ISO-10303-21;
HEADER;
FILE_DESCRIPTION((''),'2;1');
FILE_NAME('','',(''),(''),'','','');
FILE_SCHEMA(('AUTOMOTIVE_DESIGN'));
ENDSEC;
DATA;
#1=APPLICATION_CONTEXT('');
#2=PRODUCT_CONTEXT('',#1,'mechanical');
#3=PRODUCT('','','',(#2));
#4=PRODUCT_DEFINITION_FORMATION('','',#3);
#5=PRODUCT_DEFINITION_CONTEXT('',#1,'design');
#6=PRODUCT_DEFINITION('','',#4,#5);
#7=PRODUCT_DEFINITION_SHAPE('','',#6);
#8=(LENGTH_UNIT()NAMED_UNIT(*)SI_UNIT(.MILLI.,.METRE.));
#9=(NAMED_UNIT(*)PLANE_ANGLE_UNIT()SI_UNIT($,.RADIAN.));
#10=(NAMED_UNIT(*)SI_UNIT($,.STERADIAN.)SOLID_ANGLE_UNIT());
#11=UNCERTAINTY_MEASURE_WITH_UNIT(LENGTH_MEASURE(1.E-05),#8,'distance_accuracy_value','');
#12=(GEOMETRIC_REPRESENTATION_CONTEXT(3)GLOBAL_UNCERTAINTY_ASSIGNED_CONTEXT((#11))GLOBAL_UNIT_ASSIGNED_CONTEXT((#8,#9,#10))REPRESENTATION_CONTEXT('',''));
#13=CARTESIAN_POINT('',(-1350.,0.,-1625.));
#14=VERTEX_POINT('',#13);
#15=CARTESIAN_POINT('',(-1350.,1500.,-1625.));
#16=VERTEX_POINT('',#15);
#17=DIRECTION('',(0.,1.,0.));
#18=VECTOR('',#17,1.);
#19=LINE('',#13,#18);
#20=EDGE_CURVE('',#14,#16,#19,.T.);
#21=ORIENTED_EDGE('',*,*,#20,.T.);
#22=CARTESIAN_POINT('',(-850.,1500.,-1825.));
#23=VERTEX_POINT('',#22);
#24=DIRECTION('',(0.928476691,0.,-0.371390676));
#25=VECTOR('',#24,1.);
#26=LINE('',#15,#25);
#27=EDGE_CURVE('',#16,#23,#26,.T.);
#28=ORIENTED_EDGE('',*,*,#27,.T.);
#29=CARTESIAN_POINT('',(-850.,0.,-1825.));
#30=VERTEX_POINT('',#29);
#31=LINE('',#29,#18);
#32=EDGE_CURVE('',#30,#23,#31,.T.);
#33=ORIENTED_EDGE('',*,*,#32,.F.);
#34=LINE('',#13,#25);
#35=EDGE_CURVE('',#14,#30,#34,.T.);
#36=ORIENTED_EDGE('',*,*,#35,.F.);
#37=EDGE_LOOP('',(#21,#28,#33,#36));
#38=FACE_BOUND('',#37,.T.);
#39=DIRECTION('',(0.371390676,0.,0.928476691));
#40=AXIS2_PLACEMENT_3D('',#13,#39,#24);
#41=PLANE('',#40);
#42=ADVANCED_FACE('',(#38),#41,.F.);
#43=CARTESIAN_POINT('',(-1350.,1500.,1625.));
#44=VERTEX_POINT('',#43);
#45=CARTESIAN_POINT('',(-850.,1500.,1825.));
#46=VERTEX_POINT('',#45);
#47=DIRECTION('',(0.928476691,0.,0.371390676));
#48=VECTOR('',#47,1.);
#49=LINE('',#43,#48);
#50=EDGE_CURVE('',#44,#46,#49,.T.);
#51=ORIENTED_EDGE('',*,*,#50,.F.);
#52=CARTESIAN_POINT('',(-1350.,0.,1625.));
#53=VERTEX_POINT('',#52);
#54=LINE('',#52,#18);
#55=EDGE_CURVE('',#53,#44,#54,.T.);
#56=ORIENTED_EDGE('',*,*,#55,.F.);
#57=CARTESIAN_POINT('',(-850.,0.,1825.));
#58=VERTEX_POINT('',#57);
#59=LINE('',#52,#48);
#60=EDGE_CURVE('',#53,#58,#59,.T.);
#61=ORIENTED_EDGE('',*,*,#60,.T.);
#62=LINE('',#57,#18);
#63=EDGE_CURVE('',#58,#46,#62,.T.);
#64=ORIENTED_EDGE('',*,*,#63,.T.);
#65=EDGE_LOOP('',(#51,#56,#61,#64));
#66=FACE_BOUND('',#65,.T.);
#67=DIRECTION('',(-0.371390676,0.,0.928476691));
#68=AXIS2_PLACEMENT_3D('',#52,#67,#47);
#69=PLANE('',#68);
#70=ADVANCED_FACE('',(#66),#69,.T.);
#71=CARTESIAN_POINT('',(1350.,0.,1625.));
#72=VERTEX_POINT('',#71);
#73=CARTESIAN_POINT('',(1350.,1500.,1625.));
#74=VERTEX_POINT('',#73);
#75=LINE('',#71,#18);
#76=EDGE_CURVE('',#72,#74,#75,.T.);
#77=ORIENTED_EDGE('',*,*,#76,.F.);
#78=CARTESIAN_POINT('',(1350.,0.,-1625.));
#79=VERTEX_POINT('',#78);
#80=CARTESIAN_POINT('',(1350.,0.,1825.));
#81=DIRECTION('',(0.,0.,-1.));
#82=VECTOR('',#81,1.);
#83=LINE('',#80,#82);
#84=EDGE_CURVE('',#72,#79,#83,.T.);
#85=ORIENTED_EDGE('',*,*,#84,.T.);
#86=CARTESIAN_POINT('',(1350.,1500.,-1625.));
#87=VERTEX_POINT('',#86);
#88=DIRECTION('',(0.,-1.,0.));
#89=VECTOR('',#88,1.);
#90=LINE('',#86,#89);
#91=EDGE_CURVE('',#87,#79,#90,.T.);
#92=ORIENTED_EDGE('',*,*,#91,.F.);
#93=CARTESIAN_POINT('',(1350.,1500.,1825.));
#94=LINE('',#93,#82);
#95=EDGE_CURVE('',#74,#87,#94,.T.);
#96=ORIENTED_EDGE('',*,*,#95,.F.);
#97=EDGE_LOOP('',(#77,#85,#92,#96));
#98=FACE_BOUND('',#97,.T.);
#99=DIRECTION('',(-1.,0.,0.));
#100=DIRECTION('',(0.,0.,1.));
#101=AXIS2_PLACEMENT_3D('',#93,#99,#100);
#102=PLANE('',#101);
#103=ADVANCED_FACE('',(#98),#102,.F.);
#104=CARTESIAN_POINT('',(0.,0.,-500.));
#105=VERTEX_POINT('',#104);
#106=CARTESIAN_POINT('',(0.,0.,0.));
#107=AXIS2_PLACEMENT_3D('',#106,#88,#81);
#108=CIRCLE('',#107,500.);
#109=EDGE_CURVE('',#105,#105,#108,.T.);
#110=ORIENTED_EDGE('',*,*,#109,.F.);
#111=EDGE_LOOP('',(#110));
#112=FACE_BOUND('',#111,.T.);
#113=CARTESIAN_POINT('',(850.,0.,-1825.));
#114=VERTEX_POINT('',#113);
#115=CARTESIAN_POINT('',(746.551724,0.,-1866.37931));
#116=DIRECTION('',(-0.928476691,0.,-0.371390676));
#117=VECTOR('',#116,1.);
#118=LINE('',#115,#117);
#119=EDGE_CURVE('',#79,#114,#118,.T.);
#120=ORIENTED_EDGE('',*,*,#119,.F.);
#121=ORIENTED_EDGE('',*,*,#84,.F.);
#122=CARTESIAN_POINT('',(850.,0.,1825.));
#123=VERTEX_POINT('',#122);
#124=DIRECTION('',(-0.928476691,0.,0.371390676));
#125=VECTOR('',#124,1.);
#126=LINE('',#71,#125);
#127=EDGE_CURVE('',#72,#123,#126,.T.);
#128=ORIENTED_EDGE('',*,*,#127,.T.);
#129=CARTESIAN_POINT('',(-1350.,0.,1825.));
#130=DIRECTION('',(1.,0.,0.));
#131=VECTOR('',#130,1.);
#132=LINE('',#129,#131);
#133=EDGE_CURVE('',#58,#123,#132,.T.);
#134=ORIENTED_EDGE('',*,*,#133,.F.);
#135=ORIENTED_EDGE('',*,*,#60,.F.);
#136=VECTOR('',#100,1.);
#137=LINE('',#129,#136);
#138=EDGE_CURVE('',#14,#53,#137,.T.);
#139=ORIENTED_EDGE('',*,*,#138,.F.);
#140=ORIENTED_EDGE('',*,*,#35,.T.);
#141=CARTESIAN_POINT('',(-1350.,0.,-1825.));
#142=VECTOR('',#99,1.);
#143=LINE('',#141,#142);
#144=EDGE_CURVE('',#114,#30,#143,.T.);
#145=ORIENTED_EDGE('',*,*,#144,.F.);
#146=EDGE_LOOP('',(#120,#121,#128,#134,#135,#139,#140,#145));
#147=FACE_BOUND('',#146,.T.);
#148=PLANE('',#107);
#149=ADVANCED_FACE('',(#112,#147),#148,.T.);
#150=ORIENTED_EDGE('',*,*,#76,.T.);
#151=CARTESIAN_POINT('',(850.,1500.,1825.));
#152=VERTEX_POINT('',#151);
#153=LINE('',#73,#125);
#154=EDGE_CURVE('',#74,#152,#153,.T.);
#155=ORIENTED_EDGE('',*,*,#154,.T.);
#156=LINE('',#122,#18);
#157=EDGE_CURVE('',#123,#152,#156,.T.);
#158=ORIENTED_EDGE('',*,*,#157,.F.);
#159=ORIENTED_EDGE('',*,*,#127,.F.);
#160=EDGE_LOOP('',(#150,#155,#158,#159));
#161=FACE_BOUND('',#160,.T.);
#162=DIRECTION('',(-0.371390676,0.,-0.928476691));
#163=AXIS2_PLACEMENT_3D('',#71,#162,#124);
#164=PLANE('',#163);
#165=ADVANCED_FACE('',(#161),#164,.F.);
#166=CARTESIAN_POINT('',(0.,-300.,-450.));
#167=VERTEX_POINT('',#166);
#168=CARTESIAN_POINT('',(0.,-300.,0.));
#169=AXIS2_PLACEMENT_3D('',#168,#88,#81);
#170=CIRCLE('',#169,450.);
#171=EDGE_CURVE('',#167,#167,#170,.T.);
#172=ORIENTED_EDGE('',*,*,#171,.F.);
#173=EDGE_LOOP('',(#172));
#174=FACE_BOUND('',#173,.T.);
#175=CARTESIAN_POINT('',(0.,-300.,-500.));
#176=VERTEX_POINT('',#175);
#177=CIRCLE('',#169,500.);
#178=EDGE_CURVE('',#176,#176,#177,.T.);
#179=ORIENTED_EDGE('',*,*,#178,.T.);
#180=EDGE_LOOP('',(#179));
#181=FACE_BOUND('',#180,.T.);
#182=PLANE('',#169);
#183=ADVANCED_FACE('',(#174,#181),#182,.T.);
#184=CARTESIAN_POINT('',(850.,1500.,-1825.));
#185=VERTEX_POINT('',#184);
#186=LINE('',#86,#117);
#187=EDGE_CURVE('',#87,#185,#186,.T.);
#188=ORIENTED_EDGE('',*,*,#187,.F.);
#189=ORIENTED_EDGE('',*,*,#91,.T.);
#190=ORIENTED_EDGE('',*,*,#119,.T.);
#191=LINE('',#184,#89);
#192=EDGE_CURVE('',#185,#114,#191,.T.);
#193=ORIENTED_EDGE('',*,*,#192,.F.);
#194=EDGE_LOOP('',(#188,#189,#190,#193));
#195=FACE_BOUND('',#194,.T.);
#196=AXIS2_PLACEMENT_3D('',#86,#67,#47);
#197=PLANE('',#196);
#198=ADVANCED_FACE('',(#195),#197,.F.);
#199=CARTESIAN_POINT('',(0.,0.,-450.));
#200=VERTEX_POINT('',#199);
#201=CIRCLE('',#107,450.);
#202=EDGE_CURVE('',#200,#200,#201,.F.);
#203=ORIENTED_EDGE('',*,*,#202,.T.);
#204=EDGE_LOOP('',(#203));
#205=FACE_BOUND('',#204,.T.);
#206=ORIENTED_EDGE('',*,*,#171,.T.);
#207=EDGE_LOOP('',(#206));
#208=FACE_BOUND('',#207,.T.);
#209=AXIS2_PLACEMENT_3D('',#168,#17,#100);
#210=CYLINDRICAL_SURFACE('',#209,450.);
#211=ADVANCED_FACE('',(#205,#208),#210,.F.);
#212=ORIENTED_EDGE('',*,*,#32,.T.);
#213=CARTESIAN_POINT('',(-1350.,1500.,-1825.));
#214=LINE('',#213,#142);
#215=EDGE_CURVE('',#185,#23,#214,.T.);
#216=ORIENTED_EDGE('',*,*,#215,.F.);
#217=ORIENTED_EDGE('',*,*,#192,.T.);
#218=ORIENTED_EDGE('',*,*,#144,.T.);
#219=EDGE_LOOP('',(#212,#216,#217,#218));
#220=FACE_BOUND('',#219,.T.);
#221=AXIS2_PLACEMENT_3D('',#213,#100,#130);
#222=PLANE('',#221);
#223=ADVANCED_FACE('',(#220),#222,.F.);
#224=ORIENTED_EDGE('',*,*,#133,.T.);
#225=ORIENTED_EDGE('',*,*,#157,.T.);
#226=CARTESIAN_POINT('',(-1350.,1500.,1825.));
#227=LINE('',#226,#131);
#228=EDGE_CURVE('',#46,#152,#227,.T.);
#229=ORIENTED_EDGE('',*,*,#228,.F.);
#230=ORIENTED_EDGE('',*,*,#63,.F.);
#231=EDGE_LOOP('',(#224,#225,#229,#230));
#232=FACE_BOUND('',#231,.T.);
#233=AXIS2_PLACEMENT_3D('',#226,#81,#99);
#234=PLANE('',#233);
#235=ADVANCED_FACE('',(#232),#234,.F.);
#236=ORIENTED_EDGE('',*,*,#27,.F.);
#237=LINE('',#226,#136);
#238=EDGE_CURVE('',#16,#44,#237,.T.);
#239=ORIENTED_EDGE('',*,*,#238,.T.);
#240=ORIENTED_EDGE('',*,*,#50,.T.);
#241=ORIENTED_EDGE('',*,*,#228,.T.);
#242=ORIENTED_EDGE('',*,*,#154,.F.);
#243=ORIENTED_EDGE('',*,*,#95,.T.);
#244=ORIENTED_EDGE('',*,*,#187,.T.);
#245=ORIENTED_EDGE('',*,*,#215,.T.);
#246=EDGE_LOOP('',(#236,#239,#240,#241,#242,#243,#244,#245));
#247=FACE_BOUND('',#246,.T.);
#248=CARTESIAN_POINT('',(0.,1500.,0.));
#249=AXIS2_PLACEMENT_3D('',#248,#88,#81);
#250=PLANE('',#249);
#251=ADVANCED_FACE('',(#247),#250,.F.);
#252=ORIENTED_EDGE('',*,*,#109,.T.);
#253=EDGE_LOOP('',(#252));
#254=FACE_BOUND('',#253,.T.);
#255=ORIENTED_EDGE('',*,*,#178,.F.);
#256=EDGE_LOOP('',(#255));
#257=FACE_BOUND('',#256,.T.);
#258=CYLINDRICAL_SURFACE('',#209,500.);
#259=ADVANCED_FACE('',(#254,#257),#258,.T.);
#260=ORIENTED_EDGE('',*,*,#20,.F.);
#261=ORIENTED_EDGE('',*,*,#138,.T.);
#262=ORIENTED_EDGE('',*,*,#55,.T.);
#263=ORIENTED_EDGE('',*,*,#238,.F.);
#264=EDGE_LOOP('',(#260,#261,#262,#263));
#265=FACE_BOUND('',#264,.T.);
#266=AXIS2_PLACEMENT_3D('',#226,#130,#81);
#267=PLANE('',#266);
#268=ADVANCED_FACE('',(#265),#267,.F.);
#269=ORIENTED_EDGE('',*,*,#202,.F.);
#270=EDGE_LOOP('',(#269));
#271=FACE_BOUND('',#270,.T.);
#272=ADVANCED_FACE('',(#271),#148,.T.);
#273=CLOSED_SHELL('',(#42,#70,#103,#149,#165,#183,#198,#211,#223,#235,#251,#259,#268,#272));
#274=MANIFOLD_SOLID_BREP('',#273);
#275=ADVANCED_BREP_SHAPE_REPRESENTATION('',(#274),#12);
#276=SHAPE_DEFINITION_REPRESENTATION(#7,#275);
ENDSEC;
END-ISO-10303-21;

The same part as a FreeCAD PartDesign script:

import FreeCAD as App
import Part
import Sketcher
from FreeCAD import Vector
Q = App.Units.Quantity

doc = App.newDocument("Part")
body = doc.addObject("PartDesign::Body", "Body")

# Sketch on XZ plane
sketch1 = body.newObject("Sketcher::SketchObject", "Sketch")
sketch1.AttachmentSupport = (doc.getObject("XZ_Plane"), [""])
sketch1.MapMode = "FlatFace"
sketch1.addGeometry([
    Part.LineSegment(Vector(-1350, -1825, 0), Vector(-1350, 1825, 0)),
    Part.LineSegment(Vector(-1350, 1825, 0), Vector(1350, 1825, 0)),
    Part.LineSegment(Vector(1350, 1825, 0), Vector(1350, -1825, 0)),
    Part.LineSegment(Vector(1350, -1825, 0), Vector(-1350, -1825, 0)),
], False)
sketch1.addConstraint([
    Sketcher.Constraint("Coincident", 0, 2, 1, 1),
    Sketcher.Constraint("Coincident", 1, 2, 2, 1),
    Sketcher.Constraint("Coincident", 2, 2, 3, 1),
    Sketcher.Constraint("Coincident", 3, 2, 0, 1),
    Sketcher.Constraint("Vertical", 0),
    Sketcher.Constraint("Horizontal", 1),
    Sketcher.Constraint("Vertical", 2),
    Sketcher.Constraint("Horizontal", 3),
    Sketcher.Constraint("Symmetric", 0, 2, 2, 2, -1, 1),
    Sketcher.Constraint("DistanceX", 1, 1, 1, 2, Q("2700 mm")),
    Sketcher.Constraint("DistanceY", 0, 1, 0, 2, Q("3650 mm")),
])
pad1 = body.newObject("PartDesign::Pad", "Pad")
pad1.Profile = sketch1
pad1.Length = 1500
pad1.Reversed = True

# Sketch on XZ plane
sketch2 = body.newObject("Sketcher::SketchObject", "Sketch001")
sketch2.AttachmentSupport = (doc.getObject("XZ_Plane"), [""])
sketch2.MapMode = "FlatFace"
sketch2.AttachmentOffset = App.Placement(Vector(0, 0, -1500), App.Rotation())
sketch2.addGeometry([
    Part.LineSegment(Vector(-1350, -1825, 0), Vector(-1350, -1625, 0)),
    Part.LineSegment(Vector(-1350, -1625, 0), Vector(-850, -1825, 0)),
    Part.LineSegment(Vector(-850, -1825, 0), Vector(-1350, -1825, 0)),
], False)
sketch2.addConstraint([
    Sketcher.Constraint("Coincident", 0, 2, 1, 1),
    Sketcher.Constraint("Coincident", 1, 2, 2, 1),
    Sketcher.Constraint("Coincident", 2, 2, 0, 1),
    Sketcher.Constraint("Vertical", 0),
    Sketcher.Constraint("Horizontal", 2),
    Sketcher.Constraint("DistanceX", 2, 2, 2, 1, Q("500 mm")),
    Sketcher.Constraint("DistanceY", 0, 1, 0, 2, Q("200 mm")),
    Sketcher.Constraint("DistanceX", 0, 2, -1, 1, Q("1350 mm")),
    Sketcher.Constraint("DistanceY", 0, 2, -1, 1, Q("1625 mm")),
])
pocket1 = body.newObject("PartDesign::Pocket", "Pocket")
pocket1.Profile = sketch2
pocket1.Type = "ThroughAll"
pocket1.Reversed = True
doc.recompute()

mirrored = body.newObject("PartDesign::Mirrored", "Mirrored")
mirrored.Originals = [pocket1]
mirrored.MirrorPlane = (doc.getObject("XY_Plane"), [""])
body.Tip = mirrored
doc.recompute()

mirrored2 = body.newObject("PartDesign::Mirrored", "Mirrored001")
mirrored2.Originals = [pocket1]
mirrored2.MirrorPlane = (doc.getObject("XZ_Plane"), [""])
body.Tip = mirrored2

# Sketch on XZ plane
sketch3 = body.newObject("Sketcher::SketchObject", "Sketch002")
sketch3.AttachmentSupport = (doc.getObject("XZ_Plane"), [""])
sketch3.MapMode = "FlatFace"
sketch3.AttachmentOffset = App.Placement(Vector(0, 0, -1500), App.Rotation())
sketch3.addGeometry([
    Part.LineSegment(Vector(1350, 1825, 0), Vector(1350, 1625, 0)),
    Part.LineSegment(Vector(1350, 1625, 0), Vector(850, 1825, 0)),
    Part.LineSegment(Vector(850, 1825, 0), Vector(1350, 1825, 0)),
], False)
sketch3.addConstraint([
    Sketcher.Constraint("Coincident", 0, 2, 1, 1),
    Sketcher.Constraint("Coincident", 1, 2, 2, 1),
    Sketcher.Constraint("Coincident", 2, 2, 0, 1),
    Sketcher.Constraint("Vertical", 0),
    Sketcher.Constraint("Horizontal", 2),
    Sketcher.Constraint("DistanceX", 2, 1, 2, 2, Q("500 mm")),
    Sketcher.Constraint("DistanceY", 0, 2, 0, 1, Q("200 mm")),
    Sketcher.Constraint("DistanceX", -1, 1, 0, 2, Q("1350 mm")),
    Sketcher.Constraint("DistanceY", -1, 1, 0, 2, Q("1625 mm")),
])
pocket2 = body.newObject("PartDesign::Pocket", "Pocket001")
pocket2.Profile = sketch3
pocket2.Type = "ThroughAll"
pocket2.Reversed = True

# Sketch on XZ plane
sketch4 = body.newObject("Sketcher::SketchObject", "Sketch003")
sketch4.AttachmentSupport = (doc.getObject("XZ_Plane"), [""])
sketch4.MapMode = "FlatFace"
sketch4.AttachmentOffset = App.Placement(Vector(0, 0, 1500), App.Rotation())
sketch4.addGeometry([
    Part.LineSegment(Vector(1350, -1825, 0), Vector(1350, -1625, 0)),
    Part.LineSegment(Vector(1350, -1625, 0), Vector(850, -1825, 0)),
    Part.LineSegment(Vector(850, -1825, 0), Vector(1350, -1825, 0)),
], False)
sketch4.addConstraint([
    Sketcher.Constraint("Coincident", 0, 2, 1, 1),
    Sketcher.Constraint("Coincident", 1, 2, 2, 1),
    Sketcher.Constraint("Coincident", 2, 2, 0, 1),
    Sketcher.Constraint("Vertical", 0),
    Sketcher.Constraint("Horizontal", 2),
    Sketcher.Constraint("DistanceX", 2, 1, 2, 2, Q("500 mm")),
    Sketcher.Constraint("DistanceY", 0, 1, 0, 2, Q("200 mm")),
    Sketcher.Constraint("DistanceX", -1, 1, 0, 2, Q("1350 mm")),
    Sketcher.Constraint("DistanceY", 0, 2, -1, 1, Q("1625 mm")),
])
pocket3 = body.newObject("PartDesign::Pocket", "Pocket002")
pocket3.Profile = sketch4
pocket3.Length = 2721.868428

# Sketch on XZ plane
sketch5 = body.newObject("Sketcher::SketchObject", "Sketch004")
sketch5.AttachmentSupport = (doc.getObject("XZ_Plane"), [""])
sketch5.MapMode = "FlatFace"
sketch5.AttachmentOffset = App.Placement(Vector(0, 0, -1500), App.Rotation())
sketch5.addGeometry([
    Part.LineSegment(Vector(1350, -1625, 0), Vector(1350, -1825, 0)),
    Part.LineSegment(Vector(1350, -1825, 0), Vector(850, -1825, 0)),
    Part.LineSegment(Vector(850, -1825, 0), Vector(1350, -1625, 0)),
], False)
sketch5.addConstraint([
    Sketcher.Constraint("Coincident", 0, 2, 1, 1),
    Sketcher.Constraint("Coincident", 1, 2, 2, 1),
    Sketcher.Constraint("Coincident", 2, 2, 0, 1),
    Sketcher.Constraint("Vertical", 0),
    Sketcher.Constraint("Horizontal", 1),
    Sketcher.Constraint("DistanceX", 1, 2, 1, 1, Q("500 mm")),
    Sketcher.Constraint("DistanceY", 0, 2, 0, 1, Q("200 mm")),
    Sketcher.Constraint("DistanceX", -1, 1, 0, 2, Q("1350 mm")),
    Sketcher.Constraint("DistanceY", 0, 2, -1, 1, Q("1825 mm")),
])
pocket4 = body.newObject("PartDesign::Pocket", "Pocket003")
pocket4.Profile = sketch5
pocket4.Type = "ThroughAll"
pocket4.Reversed = True

# Sketch on XZ plane
sketch6 = body.newObject("Sketcher::SketchObject", "Sketch005")
sketch6.AttachmentSupport = (doc.getObject("XZ_Plane"), [""])
sketch6.MapMode = "FlatFace"
sketch6.addGeometry([
    Part.Circle(Vector(0, 0, 0), Vector(0, 0, 1), 500),
    Part.Circle(Vector(0, 0, 0), Vector(0, 0, 1), 450),
], False)
sketch6.addConstraint([
    Sketcher.Constraint("Coincident", 0, 3, -1, 1),
    Sketcher.Constraint("Coincident", 1, 3, -1, 1),
    Sketcher.Constraint("Diameter", 0, Q("1000 mm")),
    Sketcher.Constraint("Diameter", 1, Q("900 mm")),
])
pad2 = body.newObject("PartDesign::Pad", "Pad001")
pad2.Profile = sketch6
pad2.Length = 300

doc.recompute()
